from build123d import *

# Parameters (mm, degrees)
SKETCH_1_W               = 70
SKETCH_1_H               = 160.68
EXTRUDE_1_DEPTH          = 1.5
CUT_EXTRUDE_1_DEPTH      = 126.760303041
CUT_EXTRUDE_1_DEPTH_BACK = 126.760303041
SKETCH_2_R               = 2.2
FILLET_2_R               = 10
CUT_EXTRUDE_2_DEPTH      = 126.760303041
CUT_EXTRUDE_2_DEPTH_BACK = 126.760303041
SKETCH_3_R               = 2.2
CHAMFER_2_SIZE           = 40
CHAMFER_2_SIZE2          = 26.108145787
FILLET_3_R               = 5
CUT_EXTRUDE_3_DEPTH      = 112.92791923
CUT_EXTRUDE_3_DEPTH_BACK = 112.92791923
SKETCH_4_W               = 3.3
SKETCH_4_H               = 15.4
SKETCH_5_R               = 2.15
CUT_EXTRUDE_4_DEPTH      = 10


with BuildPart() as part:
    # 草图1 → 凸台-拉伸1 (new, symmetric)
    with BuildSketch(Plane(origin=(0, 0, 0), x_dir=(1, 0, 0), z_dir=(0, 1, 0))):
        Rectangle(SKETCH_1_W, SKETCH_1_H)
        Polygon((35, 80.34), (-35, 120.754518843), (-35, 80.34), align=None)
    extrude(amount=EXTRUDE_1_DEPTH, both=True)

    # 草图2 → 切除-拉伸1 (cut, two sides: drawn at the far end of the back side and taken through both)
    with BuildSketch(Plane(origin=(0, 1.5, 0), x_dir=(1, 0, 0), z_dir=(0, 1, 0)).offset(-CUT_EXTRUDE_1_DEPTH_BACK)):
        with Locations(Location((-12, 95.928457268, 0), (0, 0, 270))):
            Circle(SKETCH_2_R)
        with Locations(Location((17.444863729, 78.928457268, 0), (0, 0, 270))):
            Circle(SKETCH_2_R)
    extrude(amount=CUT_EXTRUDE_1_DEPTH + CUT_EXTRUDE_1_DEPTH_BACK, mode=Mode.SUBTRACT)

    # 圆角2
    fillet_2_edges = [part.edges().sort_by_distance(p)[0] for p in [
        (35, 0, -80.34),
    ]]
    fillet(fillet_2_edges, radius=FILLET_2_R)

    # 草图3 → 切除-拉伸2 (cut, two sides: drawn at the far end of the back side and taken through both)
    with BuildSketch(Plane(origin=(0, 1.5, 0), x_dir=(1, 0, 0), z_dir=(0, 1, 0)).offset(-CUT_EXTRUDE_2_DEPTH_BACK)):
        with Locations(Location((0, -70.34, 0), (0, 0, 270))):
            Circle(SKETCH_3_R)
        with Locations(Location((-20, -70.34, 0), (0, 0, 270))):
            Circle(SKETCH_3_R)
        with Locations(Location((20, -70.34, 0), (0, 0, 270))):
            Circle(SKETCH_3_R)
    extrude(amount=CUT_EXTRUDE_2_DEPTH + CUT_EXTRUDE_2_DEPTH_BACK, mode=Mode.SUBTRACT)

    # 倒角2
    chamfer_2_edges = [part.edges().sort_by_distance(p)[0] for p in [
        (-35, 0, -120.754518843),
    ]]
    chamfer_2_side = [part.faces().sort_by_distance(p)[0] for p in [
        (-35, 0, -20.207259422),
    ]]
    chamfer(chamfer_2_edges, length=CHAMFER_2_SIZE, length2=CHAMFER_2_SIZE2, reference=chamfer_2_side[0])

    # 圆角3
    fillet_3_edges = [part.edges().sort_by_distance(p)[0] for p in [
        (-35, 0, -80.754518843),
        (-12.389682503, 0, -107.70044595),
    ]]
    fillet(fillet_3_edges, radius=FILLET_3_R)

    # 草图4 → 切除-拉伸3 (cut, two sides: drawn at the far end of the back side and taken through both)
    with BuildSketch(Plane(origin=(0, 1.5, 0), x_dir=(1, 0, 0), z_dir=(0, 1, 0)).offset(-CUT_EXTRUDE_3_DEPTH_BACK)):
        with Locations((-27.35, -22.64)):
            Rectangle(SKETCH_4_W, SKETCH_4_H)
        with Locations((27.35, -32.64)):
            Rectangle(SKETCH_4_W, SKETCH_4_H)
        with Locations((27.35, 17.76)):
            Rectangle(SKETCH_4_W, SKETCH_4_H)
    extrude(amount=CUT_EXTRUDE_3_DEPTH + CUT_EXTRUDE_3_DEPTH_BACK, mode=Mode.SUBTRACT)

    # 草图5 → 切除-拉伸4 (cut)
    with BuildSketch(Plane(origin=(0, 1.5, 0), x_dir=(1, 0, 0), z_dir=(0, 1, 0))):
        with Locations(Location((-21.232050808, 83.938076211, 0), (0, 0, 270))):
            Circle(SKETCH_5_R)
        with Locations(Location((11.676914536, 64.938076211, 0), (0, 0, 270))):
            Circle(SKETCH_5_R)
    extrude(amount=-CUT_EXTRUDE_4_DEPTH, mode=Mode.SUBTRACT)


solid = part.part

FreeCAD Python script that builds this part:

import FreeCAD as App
import Part
import Sketcher
Q = App.Units.Quantity


def edges_at(feature, points):
    """Names of the edges that pass closest to the given points."""
    edges = feature.Shape.Edges
    near = lambda p: min(range(len(edges)), key=lambda i: edges[i].distToShape(Part.Vertex(*p))[0])
    return sorted({f"Edge{near(p) + 1}" for p in points})

doc = App.newDocument("Part")
body = doc.addObject("PartDesign::Body", "Body")

# Sketch on XZ plane
sketch1 = doc.addObject("Sketcher::SketchObject", "Sketch")
body.addObject(sketch1)
sketch1.AttachmentSupport = (doc.XZ_Plane, [""])
sketch1.MapMode = "FlatFace"
sketch1.addGeometry([
    Part.LineSegment(App.Vector(-35, 80, 0), App.Vector(35, 80, 0)),
    Part.LineSegment(App.Vector(35, 80, 0), App.Vector(35, -80, 0)),
    Part.LineSegment(App.Vector(35, -80, 0), App.Vector(-35, -121, 0)),
    Part.LineSegment(App.Vector(-35, -121, 0), App.Vector(-35, 80, 0)),
], False)
sketch1.addConstraint([
    Sketcher.Constraint("Coincident", 0, 2, 1, 1),
    Sketcher.Constraint("Coincident", 1, 2, 2, 1),
    Sketcher.Constraint("Coincident", 2, 2, 3, 1),
    Sketcher.Constraint("Coincident", 3, 2, 0, 1),
    Sketcher.Constraint("Horizontal", 0),
    Sketcher.Constraint("Vertical", 1),
    Sketcher.Constraint("Vertical", 3),
    Sketcher.Constraint("Symmetric", 1, 2, 3, 2, -1, 1),
    Sketcher.Constraint("DistanceX", 0, 1, 0, 2, 70.0),
    Sketcher.Constraint("Angle", 2, Q("-150 deg")),
    Sketcher.Constraint("DistanceY", 1, 2, 1, 1, 160.68),
])
pad1 = doc.addObject("PartDesign::Pad", "Pad")
body.addObject(pad1)
pad1.Profile = sketch1
pad1.Length = 3
pad1.Midplane = True

# Sketch on XZ plane
sketch2 = doc.addObject("Sketcher::SketchObject", "Sketch001")
body.addObject(sketch2)
sketch2.AttachmentSupport = (doc.XZ_Plane, [""])
sketch2.MapMode = "FlatFace"
sketch2.AttachmentOffset = App.Placement(App.Vector(0, 0, -1.5), App.Rotation())
sketch2.addGeometry([
    Part.Circle(App.Vector(-12, -95.9, 0), App.Vector(0, 0, 1), 2.2),
    Part.Circle(App.Vector(17.4, -78.9, 0), App.Vector(0, 0, 1), 2.2),
], False)
sketch2.addConstraint([
    Sketcher.Constraint("Equal", 0, 1),
    Sketcher.Constraint("Diameter", 0, 4.4),
    Sketcher.Constraint("DistanceX", 0, 3, -1, 1, 12.0),
    Sketcher.Constraint("DistanceY", 0, 3, 1, 3, 17.0),
    Sketcher.Constraint("DistanceY", 0, 3, -1, 1, 95.928457),
    Sketcher.Constraint("DistanceX", -1, 1, 1, 3, 17.444864),
])
pocket1 = doc.addObject("PartDesign::Pocket", "Pocket")
body.addObject(pocket1)
pocket1.Profile = sketch2
pocket1.Type = "ThroughAll"
pocket1.Midplane = True
doc.recompute()

fillet = doc.addObject("PartDesign::Fillet", "Fillet")
body.addObject(fillet)
fillet.Base = (pocket1, edges_at(pocket1, [(35, 0, -80.34)]))
fillet.Radius = 10

# Sketch on XZ plane
sketch3 = doc.addObject("Sketcher::SketchObject", "Sketch002")
body.addObject(sketch3)
sketch3.AttachmentSupport = (doc.XZ_Plane, [""])
sketch3.MapMode = "FlatFace"
sketch3.AttachmentOffset = App.Placement(App.Vector(0, 0, -1.5), App.Rotation())
sketch3.addGeometry([
    Part.Circle(App.Vector(0, 70.3, 0), App.Vector(0, 0, 1), 2.2),
    Part.Circle(App.Vector(-20, 70.3, 0), App.Vector(0, 0, 1), 2.2),
    Part.Circle(App.Vector(20, 70.3, 0), App.Vector(0, 0, 1), 2.2),
], False)
sketch3.addConstraint([
    Sketcher.Constraint("Equal", 0, 1),
    Sketcher.Constraint("Equal", 1, 2),
    Sketcher.Constraint("Symmetric", 1, 3, 2, 3, -2),
    Sketcher.Constraint("PointOnObject", 0, 3, -2),
    Sketcher.Constraint("Horizontal", 0, 3, 1, 3),
    Sketcher.Constraint("Diameter", 0, 4.4),
    Sketcher.Constraint("DistanceX", 1, 3, -1, 1, 20.0),
    Sketcher.Constraint("DistanceY", -1, 1, 0, 3, 70.34),
])
pocket2 = doc.addObject("PartDesign::Pocket", "Pocket001")
body.addObject(pocket2)
pocket2.Profile = sketch3
pocket2.Type = "ThroughAll"
pocket2.Midplane = True
doc.recompute()

chamfer = doc.addObject("PartDesign::Chamfer", "Chamfer")
body.addObject(chamfer)
chamfer.Base = (pocket2, edges_at(pocket2, [(-35, 0, -120.755)]))
chamfer.ChamferType = "Two distances"
chamfer.Size = 40
chamfer.Size2 = 26.108146
chamfer.FlipDirection = True
doc.recompute()

fillet2 = doc.addObject("PartDesign::Fillet", "Fillet001")
body.addObject(fillet2)
fillet2.Base = (chamfer, edges_at(chamfer, [(-35, 0, -80.755), (-12.39, 0, -107.7)]))
fillet2.Radius = 5

# Sketch on XZ plane
sketch4 = doc.addObject("Sketcher::SketchObject", "Sketch003")
body.addObject(sketch4)
sketch4.AttachmentSupport = (doc.XZ_Plane, [""])
sketch4.MapMode = "FlatFace"
sketch4.AttachmentOffset = App.Placement(App.Vector(0, 0, -1.5), App.Rotation())
sketch4.addGeometry([
    Part.LineSegment(App.Vector(-29, 14.9, 0), App.Vector(-29, 30.3, 0)),  # 0
    Part.LineSegment(App.Vector(-29, 30.3, 0), App.Vector(-25.7, 30.3, 0)),  # 1
    Part.LineSegment(App.Vector(-25.7, 30.3, 0), App.Vector(-25.7, 14.9, 0)),  # 2
    Part.LineSegment(App.Vector(-25.7, 14.9, 0), App.Vector(-29, 14.9, 0)),  # 3
    Part.LineSegment(App.Vector(25.7, 24.9, 0), App.Vector(25.7, 40.3, 0)),  # 4
    Part.LineSegment(App.Vector(25.7, 40.3, 0), App.Vector(29, 40.3, 0)),  # 5
    Part.LineSegment(App.Vector(29, 40.3, 0), App.Vector(29, 24.9, 0)),  # 6
    Part.LineSegment(App.Vector(29, 24.9, 0), App.Vector(25.7, 24.9, 0)),  # 7
    Part.LineSegment(App.Vector(25.7, -25.5, 0), App.Vector(25.7, -10.1, 0)),  # 8
    Part.LineSegment(App.Vector(25.7, -10.1, 0), App.Vector(29, -10.1, 0)),  # 9
    Part.LineSegment(App.Vector(29, -10.1, 0), App.Vector(29, -25.5, 0)),  # 10
    Part.LineSegment(App.Vector(29, -25.5, 0), App.Vector(25.7, -25.5, 0)),  # 11
], False)
sketch4.addConstraint([
    Sketcher.Constraint("Coincident", 0, 2, 1, 1),
    Sketcher.Constraint("Coincident", 1, 2, 2, 1),
    Sketcher.Constraint("Coincident", 2, 2, 3, 1),
    Sketcher.Constraint("Coincident", 3, 2, 0, 1),
    Sketcher.Constraint("Coincident", 4, 2, 5, 1),
    Sketcher.Constraint("Coincident", 5, 2, 6, 1),
    Sketcher.Constraint("Coincident", 6, 2, 7, 1),
    Sketcher.Constraint("Coincident", 7, 2, 4, 1),
    Sketcher.Constraint("Coincident", 8, 2, 9, 1),
    Sketcher.Constraint("Coincident", 9, 2, 10, 1),
    Sketcher.Constraint("Coincident", 10, 2, 11, 1),
    Sketcher.Constraint("Coincident", 11, 2, 8, 1),
    Sketcher.Constraint("Vertical", 0),
    Sketcher.Constraint("Horizontal", 1),
    Sketcher.Constraint("Vertical", 2),
    Sketcher.Constraint("Horizontal", 3),
    Sketcher.Constraint("Vertical", 4),
    Sketcher.Constraint("Horizontal", 5),
    Sketcher.Constraint("Vertical", 6),
    Sketcher.Constraint("Horizontal", 7),
    Sketcher.Constraint("Vertical", 8),
    Sketcher.Constraint("Horizontal", 9),
    Sketcher.Constraint("Vertical", 10),
    Sketcher.Constraint("Horizontal", 11),
    Sketcher.Constraint("Vertical", 7, 2, 8, 2),
    Sketcher.Constraint("Vertical", 6, 2, 9, 2),
    Sketcher.Constraint("Equal", 3, 5),
    Sketcher.Constraint("Equal", 2, 4),
    Sketcher.Constraint("Equal", 6, 8),
    Sketcher.Constraint("DistanceX", 1, 1, 1, 2, 3.3),
    Sketcher.Constraint("DistanceY", 0, 1, 0, 2, 15.4),
    Sketcher.Constraint("DistanceX", 0, 2, -1, 1, 29.0),
    Sketcher.Constraint("DistanceX", -1, 1, 5, 2, 29.0),
    Sketcher.Constraint("DistanceY", 1, 2, 4, 2, 10.0),
    Sketcher.Constraint("DistanceY", 8, 2, 7, 2, 35.0),
    Sketcher.Constraint("DistanceY", -1, 1, 0, 2, 30.34),
])
pocket3 = doc.addObject("PartDesign::Pocket", "Pocket002")
body.addObject(pocket3)
pocket3.Profile = sketch4
pocket3.Type = "ThroughAll"
pocket3.Midplane = True

# Sketch on XZ plane
sketch5 = doc.addObject("Sketcher::SketchObject", "Sketch004")
body.addObject(sketch5)
sketch5.AttachmentSupport = (doc.XZ_Plane, [""])
sketch5.MapMode = "FlatFace"
sketch5.AttachmentOffset = App.Placement(App.Vector(0, 0, -1.5), App.Rotation())
sketch5.addGeometry([
    Part.Circle(App.Vector(-21.2, -83.9, 0), App.Vector(0, 0, 1), 2.1),
    Part.Circle(App.Vector(11.7, -64.9, 0), App.Vector(0, 0, 1), 2.1),
], False)
sketch5.addConstraint([
    Sketcher.Constraint("Equal", 0, 1),
    Sketcher.Constraint("Diameter", 0, 4.3),
    Sketcher.Constraint("DistanceY", 0, 3, 1, 3, 19.0),
    Sketcher.Constraint("DistanceX", 0, 3, -1, 1, 21.232051),
    Sketcher.Constraint("DistanceY", 0, 3, -1, 1, 83.938076),
    Sketcher.Constraint("DistanceX", -1, 1, 1, 3, 11.676915),
])
pocket4 = doc.addObject("PartDesign::Pocket", "Pocket003")
body.addObject(pocket4)
pocket4.Profile = sketch5
pocket4.Length = 10
pocket4.Reversed = True

doc.recompute()
